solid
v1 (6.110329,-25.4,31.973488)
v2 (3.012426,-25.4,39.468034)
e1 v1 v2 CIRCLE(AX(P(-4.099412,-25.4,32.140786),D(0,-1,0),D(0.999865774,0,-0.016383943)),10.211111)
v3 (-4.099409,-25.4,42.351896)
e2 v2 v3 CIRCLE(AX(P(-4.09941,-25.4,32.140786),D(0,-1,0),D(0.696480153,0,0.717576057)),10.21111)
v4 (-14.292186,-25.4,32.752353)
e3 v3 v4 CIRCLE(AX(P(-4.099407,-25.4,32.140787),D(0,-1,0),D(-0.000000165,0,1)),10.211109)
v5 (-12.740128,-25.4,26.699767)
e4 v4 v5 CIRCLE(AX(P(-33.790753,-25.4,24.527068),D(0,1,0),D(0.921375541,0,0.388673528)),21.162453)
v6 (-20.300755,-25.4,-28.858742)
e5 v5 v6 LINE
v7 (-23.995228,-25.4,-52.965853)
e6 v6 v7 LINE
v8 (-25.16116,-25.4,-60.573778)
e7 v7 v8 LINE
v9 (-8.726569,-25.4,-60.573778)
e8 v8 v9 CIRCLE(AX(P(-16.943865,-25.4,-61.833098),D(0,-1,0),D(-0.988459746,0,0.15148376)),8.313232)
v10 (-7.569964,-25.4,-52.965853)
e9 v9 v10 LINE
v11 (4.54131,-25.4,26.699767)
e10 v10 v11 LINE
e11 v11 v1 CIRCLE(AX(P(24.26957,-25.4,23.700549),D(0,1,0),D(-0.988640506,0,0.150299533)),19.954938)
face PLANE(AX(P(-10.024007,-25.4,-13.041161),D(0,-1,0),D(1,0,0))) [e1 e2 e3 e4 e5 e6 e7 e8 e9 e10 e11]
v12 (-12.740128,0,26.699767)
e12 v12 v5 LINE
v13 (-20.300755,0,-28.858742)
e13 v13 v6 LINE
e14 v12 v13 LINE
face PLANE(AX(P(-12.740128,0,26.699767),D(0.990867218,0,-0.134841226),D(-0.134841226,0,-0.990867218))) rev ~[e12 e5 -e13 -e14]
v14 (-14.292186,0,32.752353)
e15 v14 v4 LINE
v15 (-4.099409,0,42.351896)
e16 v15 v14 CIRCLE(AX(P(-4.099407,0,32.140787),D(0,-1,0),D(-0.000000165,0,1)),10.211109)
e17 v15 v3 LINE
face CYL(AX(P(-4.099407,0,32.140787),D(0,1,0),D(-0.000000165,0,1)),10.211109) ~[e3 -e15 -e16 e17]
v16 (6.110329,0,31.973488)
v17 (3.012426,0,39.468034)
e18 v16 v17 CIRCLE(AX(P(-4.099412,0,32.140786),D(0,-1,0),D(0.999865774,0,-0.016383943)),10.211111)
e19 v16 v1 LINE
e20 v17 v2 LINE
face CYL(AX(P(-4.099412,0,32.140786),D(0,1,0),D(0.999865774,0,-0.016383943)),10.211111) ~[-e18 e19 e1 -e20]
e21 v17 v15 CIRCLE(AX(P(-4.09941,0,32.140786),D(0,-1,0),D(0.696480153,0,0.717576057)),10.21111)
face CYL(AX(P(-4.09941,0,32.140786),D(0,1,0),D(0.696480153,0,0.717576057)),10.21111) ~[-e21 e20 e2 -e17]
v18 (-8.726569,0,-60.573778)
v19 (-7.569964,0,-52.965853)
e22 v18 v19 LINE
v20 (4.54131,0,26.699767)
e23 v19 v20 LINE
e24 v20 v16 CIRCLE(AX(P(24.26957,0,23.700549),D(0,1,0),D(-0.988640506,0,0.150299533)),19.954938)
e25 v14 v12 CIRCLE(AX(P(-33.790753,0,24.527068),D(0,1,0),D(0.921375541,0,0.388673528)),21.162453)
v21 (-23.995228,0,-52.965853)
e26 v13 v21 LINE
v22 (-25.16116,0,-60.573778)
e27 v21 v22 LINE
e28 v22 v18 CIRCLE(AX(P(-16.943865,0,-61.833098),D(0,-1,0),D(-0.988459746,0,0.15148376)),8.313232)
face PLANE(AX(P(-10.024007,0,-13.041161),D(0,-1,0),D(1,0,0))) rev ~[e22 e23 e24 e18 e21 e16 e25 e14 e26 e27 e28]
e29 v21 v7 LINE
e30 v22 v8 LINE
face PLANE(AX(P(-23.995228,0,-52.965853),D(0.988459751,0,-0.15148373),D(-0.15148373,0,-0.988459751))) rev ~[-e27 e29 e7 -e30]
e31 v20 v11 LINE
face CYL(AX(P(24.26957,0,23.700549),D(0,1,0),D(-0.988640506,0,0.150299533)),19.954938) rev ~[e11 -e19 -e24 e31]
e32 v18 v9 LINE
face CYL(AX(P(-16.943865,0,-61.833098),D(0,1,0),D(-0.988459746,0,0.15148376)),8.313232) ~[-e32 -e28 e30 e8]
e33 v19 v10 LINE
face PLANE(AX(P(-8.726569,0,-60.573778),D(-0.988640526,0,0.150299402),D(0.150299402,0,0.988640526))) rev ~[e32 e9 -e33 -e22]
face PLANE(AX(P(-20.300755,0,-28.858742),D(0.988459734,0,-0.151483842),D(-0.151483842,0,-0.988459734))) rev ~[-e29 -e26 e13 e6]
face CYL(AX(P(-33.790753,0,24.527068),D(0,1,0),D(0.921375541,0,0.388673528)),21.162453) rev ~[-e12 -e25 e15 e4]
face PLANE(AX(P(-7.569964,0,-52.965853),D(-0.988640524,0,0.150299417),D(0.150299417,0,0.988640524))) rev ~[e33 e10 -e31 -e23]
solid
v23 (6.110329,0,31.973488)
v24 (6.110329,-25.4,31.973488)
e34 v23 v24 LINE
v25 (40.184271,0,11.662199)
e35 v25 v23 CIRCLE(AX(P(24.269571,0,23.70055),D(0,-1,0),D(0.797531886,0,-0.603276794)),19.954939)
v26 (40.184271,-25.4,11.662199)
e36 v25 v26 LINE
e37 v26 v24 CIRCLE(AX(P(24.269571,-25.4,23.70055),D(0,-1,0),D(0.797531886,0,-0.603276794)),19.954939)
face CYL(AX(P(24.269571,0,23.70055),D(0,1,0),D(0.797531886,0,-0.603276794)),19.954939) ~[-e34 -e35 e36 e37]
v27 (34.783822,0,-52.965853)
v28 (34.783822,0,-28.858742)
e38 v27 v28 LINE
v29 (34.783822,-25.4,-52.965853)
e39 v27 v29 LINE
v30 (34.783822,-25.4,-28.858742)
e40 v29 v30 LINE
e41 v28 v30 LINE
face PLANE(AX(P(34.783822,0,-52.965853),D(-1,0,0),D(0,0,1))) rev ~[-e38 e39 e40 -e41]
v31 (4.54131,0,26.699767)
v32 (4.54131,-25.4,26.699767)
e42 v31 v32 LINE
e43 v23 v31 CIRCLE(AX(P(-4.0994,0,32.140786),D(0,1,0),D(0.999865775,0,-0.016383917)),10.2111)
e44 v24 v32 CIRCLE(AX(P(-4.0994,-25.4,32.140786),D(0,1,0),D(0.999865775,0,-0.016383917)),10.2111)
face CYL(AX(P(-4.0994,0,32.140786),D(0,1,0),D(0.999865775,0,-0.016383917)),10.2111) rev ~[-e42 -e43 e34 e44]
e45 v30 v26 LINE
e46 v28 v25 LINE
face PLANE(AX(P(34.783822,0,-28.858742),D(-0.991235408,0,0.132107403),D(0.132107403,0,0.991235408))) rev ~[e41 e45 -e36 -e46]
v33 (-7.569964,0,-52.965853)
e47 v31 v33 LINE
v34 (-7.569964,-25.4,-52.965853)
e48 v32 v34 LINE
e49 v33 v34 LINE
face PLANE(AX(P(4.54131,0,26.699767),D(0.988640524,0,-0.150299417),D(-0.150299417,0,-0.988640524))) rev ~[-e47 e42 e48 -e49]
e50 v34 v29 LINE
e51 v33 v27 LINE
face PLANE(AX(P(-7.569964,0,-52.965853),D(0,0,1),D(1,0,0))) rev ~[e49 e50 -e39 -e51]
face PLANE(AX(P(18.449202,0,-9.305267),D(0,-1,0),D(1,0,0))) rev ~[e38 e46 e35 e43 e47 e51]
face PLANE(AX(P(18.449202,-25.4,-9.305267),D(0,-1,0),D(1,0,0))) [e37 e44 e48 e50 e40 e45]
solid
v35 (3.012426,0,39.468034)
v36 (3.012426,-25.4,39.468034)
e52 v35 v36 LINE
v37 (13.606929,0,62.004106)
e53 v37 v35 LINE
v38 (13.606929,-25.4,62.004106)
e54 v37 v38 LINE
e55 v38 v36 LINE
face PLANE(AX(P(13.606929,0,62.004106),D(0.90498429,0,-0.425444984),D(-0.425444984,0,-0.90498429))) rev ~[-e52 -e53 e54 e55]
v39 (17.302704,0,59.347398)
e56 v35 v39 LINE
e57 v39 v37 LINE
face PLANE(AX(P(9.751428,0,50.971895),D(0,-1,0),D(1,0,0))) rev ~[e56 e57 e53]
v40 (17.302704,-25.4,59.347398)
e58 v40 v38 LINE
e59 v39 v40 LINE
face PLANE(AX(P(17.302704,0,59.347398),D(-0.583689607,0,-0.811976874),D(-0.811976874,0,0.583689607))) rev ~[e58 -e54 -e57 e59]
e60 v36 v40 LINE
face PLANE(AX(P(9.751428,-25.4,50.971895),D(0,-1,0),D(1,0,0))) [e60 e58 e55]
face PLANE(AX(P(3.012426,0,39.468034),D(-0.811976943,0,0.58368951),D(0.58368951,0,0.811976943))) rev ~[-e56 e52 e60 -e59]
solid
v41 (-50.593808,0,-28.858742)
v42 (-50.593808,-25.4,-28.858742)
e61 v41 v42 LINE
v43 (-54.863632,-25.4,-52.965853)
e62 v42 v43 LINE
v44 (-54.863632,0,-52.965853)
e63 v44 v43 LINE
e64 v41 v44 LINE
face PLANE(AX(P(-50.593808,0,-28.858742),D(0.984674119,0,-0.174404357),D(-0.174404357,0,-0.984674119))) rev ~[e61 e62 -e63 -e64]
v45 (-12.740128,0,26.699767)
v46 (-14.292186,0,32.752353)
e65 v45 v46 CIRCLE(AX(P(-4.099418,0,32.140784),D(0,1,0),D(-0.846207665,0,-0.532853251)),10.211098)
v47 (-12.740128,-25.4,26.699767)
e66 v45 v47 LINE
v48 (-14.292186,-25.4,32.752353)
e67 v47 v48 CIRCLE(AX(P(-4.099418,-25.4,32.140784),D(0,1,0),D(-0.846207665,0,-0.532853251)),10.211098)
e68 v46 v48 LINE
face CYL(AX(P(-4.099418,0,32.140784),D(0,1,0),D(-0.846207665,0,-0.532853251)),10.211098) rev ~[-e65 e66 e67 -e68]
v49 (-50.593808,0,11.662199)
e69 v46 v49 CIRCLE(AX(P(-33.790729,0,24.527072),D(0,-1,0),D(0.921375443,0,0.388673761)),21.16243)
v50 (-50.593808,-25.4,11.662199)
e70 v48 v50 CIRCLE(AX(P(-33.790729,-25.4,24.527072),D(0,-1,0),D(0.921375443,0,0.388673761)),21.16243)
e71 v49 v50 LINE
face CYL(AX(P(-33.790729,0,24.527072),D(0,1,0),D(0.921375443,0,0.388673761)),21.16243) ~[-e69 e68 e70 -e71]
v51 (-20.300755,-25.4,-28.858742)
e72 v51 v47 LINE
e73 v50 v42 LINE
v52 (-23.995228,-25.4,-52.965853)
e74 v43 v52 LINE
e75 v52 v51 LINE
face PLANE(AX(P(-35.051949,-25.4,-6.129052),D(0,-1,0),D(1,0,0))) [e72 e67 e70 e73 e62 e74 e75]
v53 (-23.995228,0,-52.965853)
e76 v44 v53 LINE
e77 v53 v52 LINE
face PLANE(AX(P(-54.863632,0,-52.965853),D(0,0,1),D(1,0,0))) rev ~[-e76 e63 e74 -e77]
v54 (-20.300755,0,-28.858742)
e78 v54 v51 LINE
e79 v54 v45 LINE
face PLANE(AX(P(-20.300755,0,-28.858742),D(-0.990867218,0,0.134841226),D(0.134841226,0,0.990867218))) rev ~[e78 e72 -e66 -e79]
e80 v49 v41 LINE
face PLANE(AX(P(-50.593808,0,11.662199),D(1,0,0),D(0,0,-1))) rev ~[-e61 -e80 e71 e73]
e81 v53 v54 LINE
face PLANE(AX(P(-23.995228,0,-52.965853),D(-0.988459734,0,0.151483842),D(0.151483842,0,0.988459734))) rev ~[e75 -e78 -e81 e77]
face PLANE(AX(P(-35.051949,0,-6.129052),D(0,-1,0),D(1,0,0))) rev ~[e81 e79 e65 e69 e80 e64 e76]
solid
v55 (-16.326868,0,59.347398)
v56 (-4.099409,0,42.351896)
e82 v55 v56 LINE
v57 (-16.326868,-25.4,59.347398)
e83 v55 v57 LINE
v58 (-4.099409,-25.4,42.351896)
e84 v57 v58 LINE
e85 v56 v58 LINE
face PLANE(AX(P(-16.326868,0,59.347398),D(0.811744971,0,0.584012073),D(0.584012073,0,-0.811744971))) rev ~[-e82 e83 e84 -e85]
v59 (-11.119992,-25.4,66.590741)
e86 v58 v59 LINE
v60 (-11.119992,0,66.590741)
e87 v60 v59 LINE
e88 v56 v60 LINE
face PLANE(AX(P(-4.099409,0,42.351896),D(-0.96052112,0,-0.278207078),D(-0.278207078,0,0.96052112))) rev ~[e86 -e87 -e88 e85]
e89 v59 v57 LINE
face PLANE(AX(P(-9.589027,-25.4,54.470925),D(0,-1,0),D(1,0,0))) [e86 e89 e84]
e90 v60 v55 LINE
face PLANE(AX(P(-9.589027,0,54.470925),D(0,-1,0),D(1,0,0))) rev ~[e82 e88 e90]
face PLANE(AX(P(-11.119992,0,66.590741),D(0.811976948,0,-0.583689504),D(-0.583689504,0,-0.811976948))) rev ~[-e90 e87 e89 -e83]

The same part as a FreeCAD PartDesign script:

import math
import FreeCAD as App
import Part
import Sketcher
from FreeCAD import Vector
Q = App.Units.Quantity


def add_polygon(sketch, points):
    """Adds a closed chain of lines whose ends are joined by coincident constraints."""
    first, n = sketch.GeometryCount, len(points)
    for a, b in zip(points, points[1:] + points[:1]):
        sketch.addGeometry(Part.LineSegment(App.Vector(*a, 0), App.Vector(*b, 0)), False)
    for i in range(n):
        sketch.addConstraint(Sketcher.Constraint("Coincident", first + i, 2, first + (i + 1) % n, 1))

doc = App.newDocument("Part")
body = doc.addObject("PartDesign::Body", "Body")
body.AllowCompound = True

# Sketch on XZ plane
sketch1 = body.newObject("Sketcher::SketchObject", "Sketch")
sketch1.AttachmentSupport = (doc.getObject("XZ_Plane"), [""])
sketch1.MapMode = "FlatFace"
sketch1.addGeometry(Part.ArcOfCircle(Part.Circle(Vector(-33.790729, 24.527072, 0), Vector(0, 0, 1), 21.16243), math.radians(22.872002), math.radians(217.438605)), False)  # 0
sketch1.addGeometry(Part.LineSegment(Vector(-50.593808, 11.662199, 0), Vector(-50.593808, -28.858742, 0)), False)  # 1
sketch1.addGeometry(Part.LineSegment(Vector(-50.593808, -28.858742, 0), Vector(-54.863632, -52.965853, 0)), False)  # 2
sketch1.addGeometry(Part.LineSegment(Vector(-54.863632, -52.965853, 0), Vector(-23.995228, -52.965853, 0)), False)  # 3
sketch1.addGeometry(Part.LineSegment(Vector(-23.995228, -52.965853, 0), Vector(-20.300755, -28.858742, 0)), False)  # 4
sketch1.addGeometry(Part.LineSegment(Vector(-20.300755, -28.858742, 0), Vector(-12.740128, 26.699767, 0)), False)  # 5
sketch1.addGeometry(Part.ArcOfCircle(Part.Circle(Vector(-4.099418, 32.140784, 0), Vector(0, 0, 1), 10.211098), math.radians(176.566353), math.radians(212.198441)), False)  # 6
sketch1.addGeometry(Part.ArcOfCircle(Part.Circle(Vector(24.269571, 23.70055, 0), Vector(0, 0, 1), 19.954939), math.radians(-37.104943), math.radians(155.50707)), False)  # 7
sketch1.addGeometry(Part.ArcOfCircle(Part.Circle(Vector(-4.0994, 32.140786, 0), Vector(0, 0, 1), 10.2111), math.radians(-32.198449), math.radians(-0.938771)), False)  # 8
sketch1.addGeometry(Part.LineSegment(Vector(4.54131, 26.699767, 0), Vector(-7.569964, -52.965853, 0)), False)  # 9
sketch1.addGeometry(Part.LineSegment(Vector(-7.569964, -52.965853, 0), Vector(34.783822, -52.965853, 0)), False)  # 10
sketch1.addGeometry(Part.LineSegment(Vector(34.783822, -52.965853, 0), Vector(34.783822, -28.858742, 0)), False)  # 11
sketch1.addGeometry(Part.LineSegment(Vector(34.783822, -28.858742, 0), Vector(40.184271, 11.662199, 0)), False)  # 12
add_polygon(sketch1, [(-16.326868, 59.347398), (-4.099409, 42.351896), (-11.119992, 66.590741)])  # lines 13-15
add_polygon(sketch1, [(13.606929, 62.004106), (3.012426, 39.468034), (17.302704, 59.347398)])  # lines 16-18
sketch1.addConstraint([
    Sketcher.Constraint("Coincident", 0, 2, 1, 1),
    Sketcher.Constraint("Coincident", 1, 2, 2, 1),
    Sketcher.Constraint("Coincident", 2, 2, 3, 1),
    Sketcher.Constraint("Coincident", 3, 2, 4, 1),
    Sketcher.Constraint("Coincident", 4, 2, 5, 1),
    Sketcher.Constraint("Coincident", 5, 2, 6, 2),
    Sketcher.Constraint("Coincident", 6, 1, 0, 1),
    Sketcher.Constraint("Coincident", 7, 2, 8, 2),
    Sketcher.Constraint("Coincident", 8, 1, 9, 1),
    Sketcher.Constraint("Coincident", 9, 2, 10, 1),
    Sketcher.Constraint("Coincident", 10, 2, 11, 1),
    Sketcher.Constraint("Coincident", 11, 2, 12, 1),
    Sketcher.Constraint("Coincident", 12, 2, 7, 1),
    Sketcher.Constraint("Vertical", 1),
    Sketcher.Constraint("Horizontal", 3),
    Sketcher.Constraint("Horizontal", 10),
    Sketcher.Constraint("Vertical", 11),
    Sketcher.Constraint("Radius", 6, Q("10.211098 mm")),
    Sketcher.Constraint("Radius", 8, Q("10.2111 mm")),
    Sketcher.Constraint("Radius", 0, Q("21.16243 mm")),
    Sketcher.Constraint("Radius", 7, Q("19.954939 mm")),
    Sketcher.Constraint("DistanceX", 13, 2, 18, 2, Q("0.6970999 in")),
    Sketcher.Constraint("Distance", 14, Q("25.235098 mm")),
    Sketcher.Constraint("DistanceY", 1, 2, 1, 1, Q("40.520941 mm")),
    Sketcher.Constraint("DistanceY", 11, 1, 11, 2, Q("24.107111 mm")),
    Sketcher.Constraint("DistanceX", 8, 3, -1, 1, Q("4.0994 mm")),
    Sketcher.Constraint("DistanceY", -1, 1, 0, 2, Q("11.662199 mm")),
    Sketcher.Constraint("DistanceY", -1, 1, 12, 2, Q("11.662199 mm")),
    Sketcher.Constraint("DistanceX", 0, 3, 7, 3, Q("58.0603 mm")),
    Sketcher.Constraint("DistanceX", 0, 3, 3, 2, Q("9.795501 mm")),
    Sketcher.Constraint("DistanceX", 0, 3, 5, 2, Q("21.050601 mm")),
    Sketcher.Constraint("DistanceX", 7, 3, 12, 2, Q("15.9147 mm")),
    Sketcher.Constraint("DistanceY", 13, 2, 15, 2, Q("16.995502 mm")),
    Sketcher.Constraint("DistanceY", 13, 2, 17, 2, Q("16.995502 mm")),
    Sketcher.Constraint("Distance", 4, Q("24.388561 mm")),
    Sketcher.Constraint("Distance", 5, Q("56.070589 mm")),
    Sketcher.Constraint("Distance", 12, Q("40.879231 mm")),
    Sketcher.Constraint("Distance", 16, Q("24.902169 mm")),
    Sketcher.Constraint("Distance", 17, Q("24.482671 mm")),
    Sketcher.Constraint("DistanceX", 3, 1, 3, 2, Q("30.868404 mm")),
    Sketcher.Constraint("DistanceX", 10, 1, 10, 2, Q("42.353786 mm")),
    Sketcher.Constraint("DistanceX", 0, 3, -1, 1, Q("33.790729 mm")),
    Sketcher.Constraint("DistanceY", -1, 1, 0, 3, Q("24.527072 mm")),
    Sketcher.Constraint("DistanceX", 6, 3, -1, 1, Q("4.099418 mm")),
    Sketcher.Constraint("DistanceY", 4, 2, -1, 1, Q("28.858742 mm")),
    Sketcher.Constraint("DistanceX", -1, 1, 8, 1, Q("4.54131 mm")),
    Sketcher.Constraint("DistanceY", 11, 2, -1, 1, Q("28.858742 mm")),
    Sketcher.Constraint("DistanceX", 13, 2, -1, 1, Q("4.099409 mm")),
    Sketcher.Constraint("DistanceY", -1, 1, 14, 2, Q("66.590741 mm")),
    Sketcher.Constraint("DistanceX", 15, 2, -1, 1, Q("16.326868 mm")),
    Sketcher.Constraint("DistanceY", 2, 2, 1, 2, Q("24.107111 mm")),
    Sketcher.Constraint("DistanceY", 2, 2, 8, 3, Q("85.106639 mm")),
    Sketcher.Constraint("DistanceY", 8, 3, 13, 2, Q("10.21111 mm")),
    Sketcher.Constraint("DistanceY", 8, 3, 16, 2, Q("7.327248 mm")),
    Sketcher.Constraint("DistanceX", 15, 2, 17, 2, Q("33.629572 mm")),
])
pad1 = body.newObject("PartDesign::Pad", "Pad")
pad1.Profile = sketch1
pad1.Length = Q("1 in")
body2 = doc.addObject("PartDesign::Body", "Body001")

# Sketch on XZ plane
sketch2 = body2.newObject("Sketcher::SketchObject", "Sketch001")
sketch2.AttachmentSupport = (doc.getObject("XZ_Plane001"), [""])
sketch2.MapMode = "FlatFace"
sketch2.addGeometry([
    Part.ArcOfCircle(Part.Circle(Vector(-4, 32, 0), Vector(0, 0, 1), 10), math.radians(90), math.radians(177)),  # 0
    Part.ArcOfCircle(Part.Circle(Vector(-34, 25, 0), Vector(0, 0, 1), 21), math.radians(5.89), math.radians(22.87)),  # 1
    Part.LineSegment(Vector(-13, 27, 0), Vector(-20, -29, 0)),  # 2
    Part.LineSegment(Vector(-20, -29, 0), Vector(-24, -53, 0)),  # 3
    Part.LineSegment(Vector(-24, -53, 0), Vector(-25, -61, 0)),  # 4
    Part.ArcOfCircle(Part.Circle(Vector(-17, -62, 0), Vector(0, 0, 1), 8), math.radians(171), math.radians(369)),  # 5
    Part.LineSegment(Vector(-9, -61, 0), Vector(-8, -53, 0)),  # 6
    Part.LineSegment(Vector(-8, -53, 0), Vector(5, 27, 0)),  # 7
    Part.ArcOfCircle(Part.Circle(Vector(24, 24, 0), Vector(0, 0, 1), 20), math.radians(155.51), math.radians(171.36)),  # 8
    Part.ArcOfCircle(Part.Circle(Vector(-4, 32, 0), Vector(0, 0, 1), 10), math.radians(-1), math.radians(46)),  # 9
    Part.ArcOfCircle(Part.Circle(Vector(-4, 32, 0), Vector(0, 0, 1), 10), math.radians(46), math.radians(90)),  # 10
], False)
sketch2.addConstraint([
    Sketcher.Constraint("Coincident", 0, 2, 1, 2),
    Sketcher.Constraint("Coincident", 1, 1, 2, 1),
    Sketcher.Constraint("Coincident", 2, 2, 3, 1),
    Sketcher.Constraint("Coincident", 3, 2, 4, 1),
    Sketcher.Constraint("Tangent", 4, 2, 5, 1),
    Sketcher.Constraint("Coincident", 5, 2, 6, 1),
    Sketcher.Constraint("Coincident", 6, 2, 7, 1),
    Sketcher.Constraint("Tangent", 7, 2, 8, 2),
    Sketcher.Constraint("Coincident", 8, 1, 9, 1),
    Sketcher.Constraint("Tangent", 9, 2, 10, 1),
    Sketcher.Constraint("Tangent", 10, 2, 0, 1),
    Sketcher.Constraint("Coincident", 9, 3, 0, 3),
    Sketcher.Constraint("Parallel", 3, 4),
    Sketcher.Constraint("Parallel", 6, 7),
    Sketcher.Constraint("Horizontal", 4, 2, 5, 2),
    Sketcher.Constraint("Horizontal", 3, 2, 6, 2),
    Sketcher.Constraint("Horizontal", 1, 1, 7, 2),
    Sketcher.Constraint("Vertical", 0, 3, 10, 2),
    Sketcher.Constraint("Radius", 0, Q("10.211109 mm")),
    Sketcher.Constraint("Radius", 8, Q("19.954938 mm")),
    Sketcher.Constraint("Radius", 1, Q("21.162453 mm")),
    Sketcher.Constraint("Radius", 5, Q("8.313232 mm")),
    Sketcher.Constraint("DistanceY", 1, 3, 1, 1, Q("2.172699 mm")),
    Sketcher.Constraint("DistanceX", 1, 3, 2, 2, Q("13.489998 mm")),
    Sketcher.Constraint("DistanceX", 3, 2, 1, 1, Q("11.2551 mm")),
    Sketcher.Constraint("DistanceX", 5, 3, 6, 2, Q("9.373901 mm")),
    Sketcher.Constraint("DistanceY", 8, 1, 0, 3, Q("0.167299 mm")),
    Sketcher.Constraint("Distance", 2, Q("56.070589 mm")),
    Sketcher.Constraint("Distance", 3, Q("24.388561 mm")),
    Sketcher.Constraint("Distance", 6, Q("7.69534 mm")),
    Sketcher.Constraint("DistanceX", -1, 1, 8, 3, Q("24.26957 mm")),
    Sketcher.Constraint("DistanceY", -1, 1, 8, 3, Q("23.700549 mm")),
    Sketcher.Constraint("DistanceX", 9, 3, -1, 1, Q("4.099412 mm")),
    Sketcher.Constraint("DistanceY", 10, 3, 9, 2, Q("7.327248 mm")),
])
pad2 = body2.newObject("PartDesign::Pad", "Pad001")
pad2.Profile = sketch2
pad2.Length = Q("1 in")

doc.recompute()
